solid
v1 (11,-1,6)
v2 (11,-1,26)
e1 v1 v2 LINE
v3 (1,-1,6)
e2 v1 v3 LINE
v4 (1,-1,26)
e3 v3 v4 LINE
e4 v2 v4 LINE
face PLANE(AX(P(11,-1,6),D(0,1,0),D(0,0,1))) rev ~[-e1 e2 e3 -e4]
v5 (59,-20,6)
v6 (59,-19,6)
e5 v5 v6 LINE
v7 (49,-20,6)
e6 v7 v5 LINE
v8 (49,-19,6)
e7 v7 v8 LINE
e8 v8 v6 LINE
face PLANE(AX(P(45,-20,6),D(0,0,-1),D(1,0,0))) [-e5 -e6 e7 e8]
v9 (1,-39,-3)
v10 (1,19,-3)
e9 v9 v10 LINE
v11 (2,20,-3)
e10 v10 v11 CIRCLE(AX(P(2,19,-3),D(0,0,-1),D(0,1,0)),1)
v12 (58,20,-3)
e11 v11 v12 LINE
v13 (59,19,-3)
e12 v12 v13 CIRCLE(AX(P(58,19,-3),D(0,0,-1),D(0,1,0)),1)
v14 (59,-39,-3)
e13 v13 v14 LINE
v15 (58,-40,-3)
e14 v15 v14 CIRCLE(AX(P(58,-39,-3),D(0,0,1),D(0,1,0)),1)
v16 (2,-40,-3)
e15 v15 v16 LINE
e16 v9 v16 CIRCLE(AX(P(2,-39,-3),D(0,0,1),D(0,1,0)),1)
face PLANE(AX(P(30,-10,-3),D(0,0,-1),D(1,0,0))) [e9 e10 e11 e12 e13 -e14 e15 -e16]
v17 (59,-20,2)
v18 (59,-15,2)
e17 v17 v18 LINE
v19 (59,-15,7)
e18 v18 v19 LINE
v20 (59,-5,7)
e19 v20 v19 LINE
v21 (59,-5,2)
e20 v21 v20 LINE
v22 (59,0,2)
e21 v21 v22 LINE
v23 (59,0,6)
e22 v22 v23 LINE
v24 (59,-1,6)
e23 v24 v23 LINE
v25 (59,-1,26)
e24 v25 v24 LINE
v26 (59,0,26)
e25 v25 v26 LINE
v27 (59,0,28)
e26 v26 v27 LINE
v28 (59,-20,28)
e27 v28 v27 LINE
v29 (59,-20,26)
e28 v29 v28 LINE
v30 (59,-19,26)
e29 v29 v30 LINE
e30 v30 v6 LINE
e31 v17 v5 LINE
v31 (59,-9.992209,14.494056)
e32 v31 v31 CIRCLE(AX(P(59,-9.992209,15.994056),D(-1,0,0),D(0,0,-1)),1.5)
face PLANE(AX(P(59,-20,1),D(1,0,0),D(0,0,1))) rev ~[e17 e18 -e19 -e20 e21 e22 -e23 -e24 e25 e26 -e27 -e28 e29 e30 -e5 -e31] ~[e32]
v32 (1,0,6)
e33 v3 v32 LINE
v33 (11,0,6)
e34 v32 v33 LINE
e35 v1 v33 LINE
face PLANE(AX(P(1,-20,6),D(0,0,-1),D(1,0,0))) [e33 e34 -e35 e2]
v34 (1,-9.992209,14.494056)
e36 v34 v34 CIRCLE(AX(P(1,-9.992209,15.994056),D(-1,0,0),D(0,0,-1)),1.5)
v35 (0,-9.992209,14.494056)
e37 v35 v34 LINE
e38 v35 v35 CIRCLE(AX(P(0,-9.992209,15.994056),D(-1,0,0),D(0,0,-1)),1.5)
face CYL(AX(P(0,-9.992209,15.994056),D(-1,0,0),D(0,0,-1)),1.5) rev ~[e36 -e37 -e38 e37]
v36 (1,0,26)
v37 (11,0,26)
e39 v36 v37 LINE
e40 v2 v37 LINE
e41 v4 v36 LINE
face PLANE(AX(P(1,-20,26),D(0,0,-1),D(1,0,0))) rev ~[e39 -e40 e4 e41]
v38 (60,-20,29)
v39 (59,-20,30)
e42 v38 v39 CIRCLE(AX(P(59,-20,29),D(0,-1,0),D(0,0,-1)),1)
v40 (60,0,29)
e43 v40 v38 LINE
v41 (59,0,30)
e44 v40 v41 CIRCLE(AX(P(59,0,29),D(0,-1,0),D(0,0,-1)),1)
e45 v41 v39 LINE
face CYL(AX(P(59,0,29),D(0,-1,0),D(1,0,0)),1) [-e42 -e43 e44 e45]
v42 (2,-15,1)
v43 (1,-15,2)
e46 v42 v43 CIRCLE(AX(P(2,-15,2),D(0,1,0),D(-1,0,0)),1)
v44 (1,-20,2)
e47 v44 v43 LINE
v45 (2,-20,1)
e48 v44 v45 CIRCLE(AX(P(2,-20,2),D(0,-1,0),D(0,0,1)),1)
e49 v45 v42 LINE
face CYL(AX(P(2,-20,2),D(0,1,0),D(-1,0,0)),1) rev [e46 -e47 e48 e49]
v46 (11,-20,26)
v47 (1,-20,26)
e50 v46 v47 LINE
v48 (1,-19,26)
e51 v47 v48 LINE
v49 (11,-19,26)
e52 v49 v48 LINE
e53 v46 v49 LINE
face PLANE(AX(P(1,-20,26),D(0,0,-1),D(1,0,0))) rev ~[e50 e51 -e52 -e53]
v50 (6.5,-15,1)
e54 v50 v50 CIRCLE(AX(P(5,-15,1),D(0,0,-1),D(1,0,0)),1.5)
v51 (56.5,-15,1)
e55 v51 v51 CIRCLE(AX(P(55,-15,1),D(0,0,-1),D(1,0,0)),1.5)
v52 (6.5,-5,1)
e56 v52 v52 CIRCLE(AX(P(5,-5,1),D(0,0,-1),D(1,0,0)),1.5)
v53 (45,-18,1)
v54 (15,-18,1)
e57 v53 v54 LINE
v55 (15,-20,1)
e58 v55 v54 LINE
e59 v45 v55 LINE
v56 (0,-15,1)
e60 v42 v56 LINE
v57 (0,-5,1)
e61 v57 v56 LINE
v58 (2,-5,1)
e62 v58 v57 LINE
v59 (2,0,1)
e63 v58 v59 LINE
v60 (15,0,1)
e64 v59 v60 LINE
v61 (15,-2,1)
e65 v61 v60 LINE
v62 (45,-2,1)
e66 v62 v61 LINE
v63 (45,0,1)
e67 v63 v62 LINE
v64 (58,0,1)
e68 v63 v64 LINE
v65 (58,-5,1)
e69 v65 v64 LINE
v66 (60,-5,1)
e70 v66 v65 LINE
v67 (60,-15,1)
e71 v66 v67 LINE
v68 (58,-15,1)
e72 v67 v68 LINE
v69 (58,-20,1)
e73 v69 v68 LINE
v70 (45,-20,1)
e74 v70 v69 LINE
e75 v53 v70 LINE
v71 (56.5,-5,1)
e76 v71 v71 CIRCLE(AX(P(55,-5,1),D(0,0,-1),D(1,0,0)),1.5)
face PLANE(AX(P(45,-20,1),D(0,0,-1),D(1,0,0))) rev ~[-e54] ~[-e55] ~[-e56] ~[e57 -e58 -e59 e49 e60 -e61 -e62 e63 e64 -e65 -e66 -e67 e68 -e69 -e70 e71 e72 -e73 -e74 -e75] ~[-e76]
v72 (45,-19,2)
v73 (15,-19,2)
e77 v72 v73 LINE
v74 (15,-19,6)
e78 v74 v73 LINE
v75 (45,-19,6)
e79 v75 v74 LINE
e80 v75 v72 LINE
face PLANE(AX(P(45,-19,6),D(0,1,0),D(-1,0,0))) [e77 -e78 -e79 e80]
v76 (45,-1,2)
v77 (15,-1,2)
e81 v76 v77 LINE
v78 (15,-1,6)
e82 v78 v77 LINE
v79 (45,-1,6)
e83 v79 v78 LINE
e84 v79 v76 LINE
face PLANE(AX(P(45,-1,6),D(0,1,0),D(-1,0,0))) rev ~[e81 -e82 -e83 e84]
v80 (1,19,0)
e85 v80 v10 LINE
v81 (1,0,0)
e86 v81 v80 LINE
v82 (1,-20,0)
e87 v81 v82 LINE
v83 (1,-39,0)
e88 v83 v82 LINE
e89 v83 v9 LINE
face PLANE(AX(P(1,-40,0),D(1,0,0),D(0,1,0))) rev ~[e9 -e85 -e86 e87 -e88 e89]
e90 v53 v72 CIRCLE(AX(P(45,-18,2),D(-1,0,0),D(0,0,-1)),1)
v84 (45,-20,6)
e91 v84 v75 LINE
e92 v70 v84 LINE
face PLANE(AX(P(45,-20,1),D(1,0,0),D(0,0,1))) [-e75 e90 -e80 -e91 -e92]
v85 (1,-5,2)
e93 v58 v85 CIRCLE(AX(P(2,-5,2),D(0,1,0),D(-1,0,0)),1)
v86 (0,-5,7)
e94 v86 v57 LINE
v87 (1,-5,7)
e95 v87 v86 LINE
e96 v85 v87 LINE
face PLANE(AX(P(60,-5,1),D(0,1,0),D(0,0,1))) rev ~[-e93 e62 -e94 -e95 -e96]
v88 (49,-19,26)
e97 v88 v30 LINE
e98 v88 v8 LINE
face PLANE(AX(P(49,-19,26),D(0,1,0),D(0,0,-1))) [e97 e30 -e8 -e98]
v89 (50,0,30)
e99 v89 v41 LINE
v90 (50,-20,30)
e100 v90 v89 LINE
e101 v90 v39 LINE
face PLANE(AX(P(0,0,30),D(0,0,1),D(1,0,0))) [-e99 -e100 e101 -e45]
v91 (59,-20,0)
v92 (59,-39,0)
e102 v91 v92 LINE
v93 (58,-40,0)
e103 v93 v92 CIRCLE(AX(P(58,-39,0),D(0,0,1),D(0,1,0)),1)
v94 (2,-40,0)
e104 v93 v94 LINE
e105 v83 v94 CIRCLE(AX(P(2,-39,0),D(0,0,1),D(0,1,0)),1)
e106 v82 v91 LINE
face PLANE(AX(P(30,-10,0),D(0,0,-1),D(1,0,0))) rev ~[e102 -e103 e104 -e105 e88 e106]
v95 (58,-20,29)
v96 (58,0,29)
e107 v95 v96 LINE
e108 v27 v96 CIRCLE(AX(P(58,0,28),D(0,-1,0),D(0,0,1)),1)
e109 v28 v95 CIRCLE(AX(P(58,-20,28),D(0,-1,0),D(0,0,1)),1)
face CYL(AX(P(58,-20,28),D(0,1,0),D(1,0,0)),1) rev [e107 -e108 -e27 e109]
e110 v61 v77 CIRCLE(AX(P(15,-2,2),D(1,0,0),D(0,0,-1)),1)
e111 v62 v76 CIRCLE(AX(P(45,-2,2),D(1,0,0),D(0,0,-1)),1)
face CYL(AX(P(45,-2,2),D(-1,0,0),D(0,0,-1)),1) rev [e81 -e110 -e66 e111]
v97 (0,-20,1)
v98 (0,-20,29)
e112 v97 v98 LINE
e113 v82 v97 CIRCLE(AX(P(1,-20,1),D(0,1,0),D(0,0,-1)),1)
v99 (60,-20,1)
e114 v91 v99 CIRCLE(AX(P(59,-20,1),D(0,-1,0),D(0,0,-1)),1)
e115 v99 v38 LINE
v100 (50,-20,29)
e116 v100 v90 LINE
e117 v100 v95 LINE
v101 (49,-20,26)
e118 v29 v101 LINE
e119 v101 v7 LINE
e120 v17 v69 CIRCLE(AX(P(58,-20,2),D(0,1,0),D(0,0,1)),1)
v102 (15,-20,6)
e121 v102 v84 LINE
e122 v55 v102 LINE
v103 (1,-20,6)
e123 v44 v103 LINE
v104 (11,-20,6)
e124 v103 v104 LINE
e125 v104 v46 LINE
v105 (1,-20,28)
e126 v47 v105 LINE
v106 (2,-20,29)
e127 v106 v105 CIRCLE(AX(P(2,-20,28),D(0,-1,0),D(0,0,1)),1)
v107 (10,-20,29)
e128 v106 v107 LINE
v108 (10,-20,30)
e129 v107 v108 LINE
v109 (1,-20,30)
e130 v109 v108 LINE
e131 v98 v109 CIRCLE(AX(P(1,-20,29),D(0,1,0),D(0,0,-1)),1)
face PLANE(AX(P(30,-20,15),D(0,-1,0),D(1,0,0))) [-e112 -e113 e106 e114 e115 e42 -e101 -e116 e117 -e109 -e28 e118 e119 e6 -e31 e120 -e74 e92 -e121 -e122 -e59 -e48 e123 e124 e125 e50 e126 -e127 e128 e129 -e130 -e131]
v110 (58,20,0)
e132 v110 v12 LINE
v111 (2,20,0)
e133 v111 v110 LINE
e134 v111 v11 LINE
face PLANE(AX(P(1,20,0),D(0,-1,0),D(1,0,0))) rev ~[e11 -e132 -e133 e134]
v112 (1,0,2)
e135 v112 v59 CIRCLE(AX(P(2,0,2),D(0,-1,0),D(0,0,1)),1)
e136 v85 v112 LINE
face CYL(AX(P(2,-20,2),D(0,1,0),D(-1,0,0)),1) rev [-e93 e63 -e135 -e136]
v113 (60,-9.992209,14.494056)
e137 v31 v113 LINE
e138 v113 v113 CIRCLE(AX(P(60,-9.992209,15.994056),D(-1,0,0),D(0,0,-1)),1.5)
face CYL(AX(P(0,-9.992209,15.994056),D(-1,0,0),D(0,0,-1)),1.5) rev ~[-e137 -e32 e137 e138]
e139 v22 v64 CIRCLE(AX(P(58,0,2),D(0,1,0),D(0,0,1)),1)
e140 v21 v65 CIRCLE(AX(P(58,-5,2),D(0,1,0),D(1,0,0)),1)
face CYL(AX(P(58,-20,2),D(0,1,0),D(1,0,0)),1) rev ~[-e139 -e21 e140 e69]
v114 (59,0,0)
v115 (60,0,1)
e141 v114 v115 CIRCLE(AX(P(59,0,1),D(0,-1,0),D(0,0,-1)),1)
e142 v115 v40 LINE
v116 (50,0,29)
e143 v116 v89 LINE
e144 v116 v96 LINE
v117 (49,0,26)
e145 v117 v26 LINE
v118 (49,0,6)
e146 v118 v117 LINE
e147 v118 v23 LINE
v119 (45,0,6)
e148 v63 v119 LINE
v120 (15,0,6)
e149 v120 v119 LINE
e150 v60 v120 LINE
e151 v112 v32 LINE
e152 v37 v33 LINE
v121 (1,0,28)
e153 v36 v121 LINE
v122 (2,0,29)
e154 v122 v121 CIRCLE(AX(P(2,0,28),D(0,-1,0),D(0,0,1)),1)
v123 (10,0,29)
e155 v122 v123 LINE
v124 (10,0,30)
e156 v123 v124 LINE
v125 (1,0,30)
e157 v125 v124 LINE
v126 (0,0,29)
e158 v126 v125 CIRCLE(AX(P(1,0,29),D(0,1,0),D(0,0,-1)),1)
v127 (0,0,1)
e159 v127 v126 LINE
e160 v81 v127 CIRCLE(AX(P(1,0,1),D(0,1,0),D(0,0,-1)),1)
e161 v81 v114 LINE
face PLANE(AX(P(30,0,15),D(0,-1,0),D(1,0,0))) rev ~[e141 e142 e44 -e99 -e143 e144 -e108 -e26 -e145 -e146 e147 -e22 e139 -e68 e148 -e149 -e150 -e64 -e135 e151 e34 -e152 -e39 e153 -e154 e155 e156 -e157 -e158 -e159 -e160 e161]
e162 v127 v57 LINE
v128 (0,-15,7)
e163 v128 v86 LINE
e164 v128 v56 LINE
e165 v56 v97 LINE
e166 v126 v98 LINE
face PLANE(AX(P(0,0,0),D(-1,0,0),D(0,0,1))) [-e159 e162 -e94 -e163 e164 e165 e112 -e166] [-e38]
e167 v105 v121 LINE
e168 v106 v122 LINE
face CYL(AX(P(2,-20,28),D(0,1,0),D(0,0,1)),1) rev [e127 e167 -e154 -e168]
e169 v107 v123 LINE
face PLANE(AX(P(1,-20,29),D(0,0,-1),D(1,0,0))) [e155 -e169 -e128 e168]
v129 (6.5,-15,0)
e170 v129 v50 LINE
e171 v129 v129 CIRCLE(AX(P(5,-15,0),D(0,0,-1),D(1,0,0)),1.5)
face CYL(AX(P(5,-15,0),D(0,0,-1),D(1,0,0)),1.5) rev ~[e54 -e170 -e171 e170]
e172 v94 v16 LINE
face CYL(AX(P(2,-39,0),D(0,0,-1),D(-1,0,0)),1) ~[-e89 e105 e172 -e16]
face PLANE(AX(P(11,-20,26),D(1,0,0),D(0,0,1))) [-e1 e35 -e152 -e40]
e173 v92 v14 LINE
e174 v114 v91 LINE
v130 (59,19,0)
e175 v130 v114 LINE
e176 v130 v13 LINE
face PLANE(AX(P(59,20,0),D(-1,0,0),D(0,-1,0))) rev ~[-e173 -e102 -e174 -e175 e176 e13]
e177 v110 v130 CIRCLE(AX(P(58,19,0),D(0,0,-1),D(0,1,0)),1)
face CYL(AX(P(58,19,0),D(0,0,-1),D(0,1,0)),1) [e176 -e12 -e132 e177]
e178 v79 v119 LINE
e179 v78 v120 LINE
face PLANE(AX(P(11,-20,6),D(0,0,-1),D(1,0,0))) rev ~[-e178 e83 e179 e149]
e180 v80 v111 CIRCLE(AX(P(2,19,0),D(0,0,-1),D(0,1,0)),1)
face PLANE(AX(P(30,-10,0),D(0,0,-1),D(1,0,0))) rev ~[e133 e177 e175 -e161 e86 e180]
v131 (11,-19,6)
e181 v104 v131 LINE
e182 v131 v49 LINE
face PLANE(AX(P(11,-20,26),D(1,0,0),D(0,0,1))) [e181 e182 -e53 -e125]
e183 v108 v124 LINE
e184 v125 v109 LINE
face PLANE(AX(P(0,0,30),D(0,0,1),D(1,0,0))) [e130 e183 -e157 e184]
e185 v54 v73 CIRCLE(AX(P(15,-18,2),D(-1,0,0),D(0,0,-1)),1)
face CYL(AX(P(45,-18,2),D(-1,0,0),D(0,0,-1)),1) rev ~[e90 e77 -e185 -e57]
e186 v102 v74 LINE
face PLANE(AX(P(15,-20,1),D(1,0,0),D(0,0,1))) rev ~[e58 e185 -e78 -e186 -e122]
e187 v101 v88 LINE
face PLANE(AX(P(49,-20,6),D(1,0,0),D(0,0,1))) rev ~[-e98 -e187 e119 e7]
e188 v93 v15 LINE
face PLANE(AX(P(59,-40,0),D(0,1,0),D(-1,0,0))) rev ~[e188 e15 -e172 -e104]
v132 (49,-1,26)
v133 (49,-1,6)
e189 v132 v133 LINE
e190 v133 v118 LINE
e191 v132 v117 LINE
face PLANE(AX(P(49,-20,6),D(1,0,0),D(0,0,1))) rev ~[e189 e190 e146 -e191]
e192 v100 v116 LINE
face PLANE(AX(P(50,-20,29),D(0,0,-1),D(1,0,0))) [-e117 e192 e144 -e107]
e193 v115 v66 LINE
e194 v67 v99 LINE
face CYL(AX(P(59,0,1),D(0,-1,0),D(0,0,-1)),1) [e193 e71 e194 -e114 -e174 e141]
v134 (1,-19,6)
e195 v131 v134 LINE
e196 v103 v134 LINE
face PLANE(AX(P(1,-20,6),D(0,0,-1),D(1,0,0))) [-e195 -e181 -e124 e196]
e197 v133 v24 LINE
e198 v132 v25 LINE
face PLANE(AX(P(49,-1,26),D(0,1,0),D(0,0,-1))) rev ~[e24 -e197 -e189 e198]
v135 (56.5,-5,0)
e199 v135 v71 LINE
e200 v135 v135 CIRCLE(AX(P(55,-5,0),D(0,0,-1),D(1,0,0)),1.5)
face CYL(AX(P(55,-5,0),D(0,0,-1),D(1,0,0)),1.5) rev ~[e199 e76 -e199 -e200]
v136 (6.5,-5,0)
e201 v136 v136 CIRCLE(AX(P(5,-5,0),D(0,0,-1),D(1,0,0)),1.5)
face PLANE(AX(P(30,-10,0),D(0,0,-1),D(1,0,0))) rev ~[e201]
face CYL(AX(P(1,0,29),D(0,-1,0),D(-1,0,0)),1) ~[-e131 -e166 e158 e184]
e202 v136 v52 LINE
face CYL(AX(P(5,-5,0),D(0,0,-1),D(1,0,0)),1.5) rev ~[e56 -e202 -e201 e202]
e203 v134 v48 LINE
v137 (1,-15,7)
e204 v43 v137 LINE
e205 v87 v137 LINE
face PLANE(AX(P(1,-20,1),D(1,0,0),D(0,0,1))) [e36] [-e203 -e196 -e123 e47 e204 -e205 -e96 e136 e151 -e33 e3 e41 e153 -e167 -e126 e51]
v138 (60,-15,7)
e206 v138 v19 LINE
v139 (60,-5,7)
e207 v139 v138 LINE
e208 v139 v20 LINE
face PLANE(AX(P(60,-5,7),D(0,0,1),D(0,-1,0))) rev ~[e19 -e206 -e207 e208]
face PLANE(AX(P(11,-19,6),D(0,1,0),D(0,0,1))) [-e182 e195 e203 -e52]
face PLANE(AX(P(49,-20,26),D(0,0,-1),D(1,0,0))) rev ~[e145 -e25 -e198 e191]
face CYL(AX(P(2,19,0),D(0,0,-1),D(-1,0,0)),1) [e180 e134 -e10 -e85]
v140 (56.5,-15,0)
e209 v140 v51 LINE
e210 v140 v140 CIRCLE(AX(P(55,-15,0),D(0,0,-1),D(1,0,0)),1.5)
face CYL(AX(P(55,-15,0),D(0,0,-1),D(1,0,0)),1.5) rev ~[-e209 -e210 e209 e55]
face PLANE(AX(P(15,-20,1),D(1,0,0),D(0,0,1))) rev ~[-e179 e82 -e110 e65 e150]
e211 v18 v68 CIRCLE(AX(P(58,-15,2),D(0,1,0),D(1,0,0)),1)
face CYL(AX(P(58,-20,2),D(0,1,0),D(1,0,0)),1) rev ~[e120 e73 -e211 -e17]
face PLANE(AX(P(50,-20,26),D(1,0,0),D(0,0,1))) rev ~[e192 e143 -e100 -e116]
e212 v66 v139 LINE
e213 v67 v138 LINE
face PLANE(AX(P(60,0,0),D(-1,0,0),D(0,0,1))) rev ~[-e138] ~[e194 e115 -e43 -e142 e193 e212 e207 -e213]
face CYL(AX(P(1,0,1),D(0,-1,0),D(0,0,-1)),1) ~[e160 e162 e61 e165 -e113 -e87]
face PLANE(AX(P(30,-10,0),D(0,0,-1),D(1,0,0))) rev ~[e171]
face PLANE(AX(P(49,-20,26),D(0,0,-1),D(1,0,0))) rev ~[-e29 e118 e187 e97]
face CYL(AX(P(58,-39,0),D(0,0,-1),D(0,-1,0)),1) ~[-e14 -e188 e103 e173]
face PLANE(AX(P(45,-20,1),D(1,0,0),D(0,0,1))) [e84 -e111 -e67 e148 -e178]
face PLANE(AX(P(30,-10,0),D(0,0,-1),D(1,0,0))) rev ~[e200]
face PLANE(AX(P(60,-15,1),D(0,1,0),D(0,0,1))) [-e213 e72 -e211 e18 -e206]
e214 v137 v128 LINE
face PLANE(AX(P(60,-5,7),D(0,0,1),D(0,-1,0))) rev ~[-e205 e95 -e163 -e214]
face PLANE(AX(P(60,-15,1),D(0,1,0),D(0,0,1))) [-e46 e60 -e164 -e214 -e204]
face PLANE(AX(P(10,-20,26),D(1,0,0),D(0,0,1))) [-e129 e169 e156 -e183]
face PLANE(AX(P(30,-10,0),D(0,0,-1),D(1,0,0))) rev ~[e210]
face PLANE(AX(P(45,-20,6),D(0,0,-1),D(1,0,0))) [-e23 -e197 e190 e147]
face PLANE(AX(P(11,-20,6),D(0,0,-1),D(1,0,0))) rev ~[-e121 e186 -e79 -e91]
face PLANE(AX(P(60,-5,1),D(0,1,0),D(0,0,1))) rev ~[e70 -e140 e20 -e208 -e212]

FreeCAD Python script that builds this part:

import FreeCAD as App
import Part
import Sketcher

V = App.Vector


def edges_at(feature, points):
    """Names of the edges that pass closest to the given points."""
    edges = feature.Shape.Edges
    near = lambda p: min(range(len(edges)), key=lambda i: edges[i].distToShape(Part.Vertex(*p))[0])
    return sorted({f"Edge{near(p) + 1}" for p in points})

doc = App.newDocument("Part")
body = doc.addObject("PartDesign::Body", "Body")

# Sketch on XZ plane
sketch1 = body.newObject("Sketcher::SketchObject", "Sketch")
sketch1.AttachmentSupport = (doc.getObject("XZ_Plane"), [""])
sketch1.MapMode = "FlatFace"
sketch1.addGeometry([
    Part.LineSegment(V(0, 30, 0), V(0, 0, 0)),
    Part.LineSegment(V(0, 0, 0), V(60, 0, 0)),
    Part.LineSegment(V(60, 0, 0), V(60, 30, 0)),
    Part.LineSegment(V(60, 30, 0), V(0, 30, 0)),
], False)
sketch1.addConstraint([
    Sketcher.Constraint("Coincident", 0, 2, 1, 1),
    Sketcher.Constraint("Coincident", 1, 2, 2, 1),
    Sketcher.Constraint("Coincident", 2, 2, 3, 1),
    Sketcher.Constraint("Coincident", 3, 2, 0, 1),
    Sketcher.Constraint("Vertical", 0),
    Sketcher.Constraint("Horizontal", 1),
    Sketcher.Constraint("Vertical", 2),
    Sketcher.Constraint("Horizontal", 3),
    Sketcher.Constraint("Coincident", 0, 2, -1, 1),
    Sketcher.Constraint("DistanceX", 1, 1, 1, 2, 60.0),
    Sketcher.Constraint("DistanceY", 0, 2, 0, 1, 30.0),
])
pad1 = body.newObject("PartDesign::Pad", "Pad")
pad1.Profile = sketch1
pad1.Length = 20

# Sketch on XZ plane
sketch2 = body.newObject("Sketcher::SketchObject", "Sketch001")
sketch2.AttachmentSupport = (doc.getObject("XZ_Plane"), [""])
sketch2.MapMode = "FlatFace"
sketch2.AttachmentOffset = App.Placement(V(0, 0, 20), App.Rotation())
sketch2.addGeometry([
    Part.LineSegment(V(1, 6, 0), V(1, 1, 0)),
    Part.LineSegment(V(1, 1, 0), V(15, 1, 0)),
    Part.LineSegment(V(15, 1, 0), V(15, 6, 0)),
    Part.LineSegment(V(15, 6, 0), V(1, 6, 0)),
], False)
sketch2.addConstraint([
    Sketcher.Constraint("Coincident", 0, 2, 1, 1),
    Sketcher.Constraint("Coincident", 1, 2, 2, 1),
    Sketcher.Constraint("Coincident", 2, 2, 3, 1),
    Sketcher.Constraint("Coincident", 3, 2, 0, 1),
    Sketcher.Constraint("Vertical", 0),
    Sketcher.Constraint("Horizontal", 1),
    Sketcher.Constraint("Vertical", 2),
    Sketcher.Constraint("Horizontal", 3),
    Sketcher.Constraint("DistanceX", 1, 1, 1, 2, 14.0),
    Sketcher.Constraint("DistanceY", 0, 2, 0, 1, 5.0),
    Sketcher.Constraint("DistanceX", -1, 1, 0, 2, 1.0),
    Sketcher.Constraint("DistanceY", -1, 1, 0, 2, 1.0),
])
pocket1 = body.newObject("PartDesign::Pocket", "Pocket")
pocket1.Profile = sketch2
pocket1.Type = "ThroughAll"

# Sketch on XZ plane
sketch3 = body.newObject("Sketcher::SketchObject", "Sketch002")
sketch3.AttachmentSupport = (doc.getObject("XZ_Plane"), [""])
sketch3.MapMode = "FlatFace"
sketch3.AttachmentOffset = App.Placement(V(0, 0, 20), App.Rotation())
sketch3.addGeometry([
    Part.LineSegment(V(45, 6, 0), V(45, 1, 0)),
    Part.LineSegment(V(45, 1, 0), V(59, 1, 0)),
    Part.LineSegment(V(59, 1, 0), V(59, 6, 0)),
    Part.LineSegment(V(59, 6, 0), V(45, 6, 0)),
], False)
sketch3.addConstraint([
    Sketcher.Constraint("Coincident", 0, 2, 1, 1),
    Sketcher.Constraint("Coincident", 1, 2, 2, 1),
    Sketcher.Constraint("Coincident", 2, 2, 3, 1),
    Sketcher.Constraint("Coincident", 3, 2, 0, 1),
    Sketcher.Constraint("Vertical", 0),
    Sketcher.Constraint("Horizontal", 1),
    Sketcher.Constraint("Vertical", 2),
    Sketcher.Constraint("Horizontal", 3),
    Sketcher.Constraint("DistanceX", 1, 1, 1, 2, 14.0),
    Sketcher.Constraint("DistanceY", 0, 2, 0, 1, 5.0),
    Sketcher.Constraint("DistanceX", -1, 1, 0, 2, 45.0),
    Sketcher.Constraint("DistanceY", -1, 1, 0, 2, 1.0),
])
pocket2 = body.newObject("PartDesign::Pocket", "Pocket001")
pocket2.Profile = sketch3
pocket2.Type = "ThroughAll"

# Sketch on XZ plane
sketch4 = body.newObject("Sketcher::SketchObject", "Sketch003")
sketch4.AttachmentSupport = (doc.getObject("XZ_Plane"), [""])
sketch4.MapMode = "FlatFace"
sketch4.AttachmentOffset = App.Placement(V(0, 0, 20), App.Rotation())
sketch4.addGeometry([
    Part.LineSegment(V(11, 26, 0), V(11, 6, 0)),
    Part.LineSegment(V(11, 6, 0), V(49, 6, 0)),
    Part.LineSegment(V(49, 6, 0), V(49, 26, 0)),
    Part.LineSegment(V(49, 26, 0), V(11, 26, 0)),
], False)
sketch4.addConstraint([
    Sketcher.Constraint("Coincident", 0, 2, 1, 1),
    Sketcher.Constraint("Coincident", 1, 2, 2, 1),
    Sketcher.Constraint("Coincident", 2, 2, 3, 1),
    Sketcher.Constraint("Coincident", 3, 2, 0, 1),
    Sketcher.Constraint("Vertical", 0),
    Sketcher.Constraint("Horizontal", 1),
    Sketcher.Constraint("Vertical", 2),
    Sketcher.Constraint("Horizontal", 3),
    Sketcher.Constraint("DistanceX", 1, 1, 1, 2, 38.0),
    Sketcher.Constraint("DistanceY", 0, 2, 0, 1, 20.0),
    Sketcher.Constraint("DistanceX", -1, 1, 0, 2, 11.0),
    Sketcher.Constraint("DistanceY", -1, 1, 0, 2, 6.0),
])
pocket3 = body.newObject("PartDesign::Pocket", "Pocket002")
pocket3.Profile = sketch4
pocket3.Type = "ThroughAll"

# Sketch on XZ plane
sketch5 = body.newObject("Sketcher::SketchObject", "Sketch004")
sketch5.AttachmentSupport = (doc.getObject("XZ_Plane"), [""])
sketch5.MapMode = "FlatFace"
sketch5.AttachmentOffset = App.Placement(V(0, 0, 20), App.Rotation())
sketch5.addGeometry([
    Part.LineSegment(V(11, 31, 0), V(11, 26, 0)),
    Part.LineSegment(V(11, 26, 0), V(49, 26, 0)),
    Part.LineSegment(V(49, 26, 0), V(49, 31, 0)),
    Part.LineSegment(V(49, 31, 0), V(11, 31, 0)),
], False)
sketch5.addConstraint([
    Sketcher.Constraint("Coincident", 0, 2, 1, 1),
    Sketcher.Constraint("Coincident", 1, 2, 2, 1),
    Sketcher.Constraint("Coincident", 2, 2, 3, 1),
    Sketcher.Constraint("Coincident", 3, 2, 0, 1),
    Sketcher.Constraint("Vertical", 0),
    Sketcher.Constraint("Horizontal", 1),
    Sketcher.Constraint("Vertical", 2),
    Sketcher.Constraint("Horizontal", 3),
    Sketcher.Constraint("DistanceX", 1, 1, 1, 2, 38.0),
    Sketcher.Constraint("DistanceY", 0, 2, 0, 1, 5.0),
    Sketcher.Constraint("DistanceX", -1, 1, 0, 2, 11.0),
    Sketcher.Constraint("DistanceY", -1, 1, 0, 2, 26.0),
])
pocket4 = body.newObject("PartDesign::Pocket", "Pocket003")
pocket4.Profile = sketch5
pocket4.Type = "ThroughAll"

# Sketch on XZ plane
sketch6 = body.newObject("Sketcher::SketchObject", "Sketch005")
sketch6.AttachmentSupport = (doc.getObject("XZ_Plane"), [""])
sketch6.MapMode = "FlatFace"
sketch6.AttachmentOffset = App.Placement(V(0, 0, 20), App.Rotation())
sketch6.addGeometry([
    Part.LineSegment(V(1, 29, 0), V(1, 26, 0)),  # 0
    Part.LineSegment(V(1, 26, 0), V(10, 26, 0)),  # 1
    Part.LineSegment(V(10, 26, 0), V(10, 29, 0)),  # 2
    Part.LineSegment(V(10, 29, 0), V(1, 29, 0)),  # 3
    Part.LineSegment(V(50, 29, 0), V(50, 26, 0)),  # 4
    Part.LineSegment(V(50, 26, 0), V(59, 26, 0)),  # 5
    Part.LineSegment(V(59, 26, 0), V(59, 29, 0)),  # 6
    Part.LineSegment(V(59, 29, 0), V(50, 29, 0)),  # 7
], False)
sketch6.addConstraint([
    Sketcher.Constraint("Coincident", 0, 2, 1, 1),
    Sketcher.Constraint("Coincident", 1, 2, 2, 1),
    Sketcher.Constraint("Coincident", 2, 2, 3, 1),
    Sketcher.Constraint("Coincident", 3, 2, 0, 1),
    Sketcher.Constraint("Coincident", 4, 2, 5, 1),
    Sketcher.Constraint("Coincident", 5, 2, 6, 1),
    Sketcher.Constraint("Coincident", 6, 2, 7, 1),
    Sketcher.Constraint("Coincident", 7, 2, 4, 1),
    Sketcher.Constraint("Vertical", 0),
    Sketcher.Constraint("Horizontal", 1),
    Sketcher.Constraint("Vertical", 2),
    Sketcher.Constraint("Horizontal", 3),
    Sketcher.Constraint("Vertical", 4),
    Sketcher.Constraint("Horizontal", 5),
    Sketcher.Constraint("Vertical", 6),
    Sketcher.Constraint("Horizontal", 7),
    Sketcher.Constraint("Horizontal", 1, 2, 4, 2),
    Sketcher.Constraint("Horizontal", 3, 2, 6, 2),
    Sketcher.Constraint("Equal", 3, 5),
    Sketcher.Constraint("DistanceX", 1, 1, 1, 2, 9.0),
    Sketcher.Constraint("DistanceY", 0, 2, 0, 1, 3.0),
    Sketcher.Constraint("DistanceX", -1, 1, 0, 2, 1.0),
    Sketcher.Constraint("DistanceY", -1, 1, 0, 2, 26.0),
    Sketcher.Constraint("DistanceX", -1, 1, 4, 2, 50.0),
])
pocket5 = body.newObject("PartDesign::Pocket", "Pocket004")
pocket5.Profile = sketch6
pocket5.Type = "ThroughAll"

# Sketch on XZ plane
sketch7 = body.newObject("Sketcher::SketchObject", "Sketch006")
sketch7.AttachmentSupport = (doc.getObject("XZ_Plane"), [""])
sketch7.MapMode = "FlatFace"
sketch7.AttachmentOffset = App.Placement(V(0, 0, 20), App.Rotation())
sketch7.addGeometry([
    Part.LineSegment(V(10, 30, 0), V(10, 26, 0)),  # 0
    Part.LineSegment(V(10, 26, 0), V(11, 26, 0)),  # 1
    Part.LineSegment(V(11, 26, 0), V(11, 30, 0)),  # 2
    Part.LineSegment(V(11, 30, 0), V(10, 30, 0)),  # 3
    Part.LineSegment(V(49, 30, 0), V(49, 26, 0)),  # 4
    Part.LineSegment(V(49, 26, 0), V(50, 26, 0)),  # 5
    Part.LineSegment(V(50, 26, 0), V(50, 30, 0)),  # 6
    Part.LineSegment(V(50, 30, 0), V(49, 30, 0)),  # 7
], False)
sketch7.addConstraint([
    Sketcher.Constraint("Coincident", 0, 2, 1, 1),
    Sketcher.Constraint("Coincident", 1, 2, 2, 1),
    Sketcher.Constraint("Coincident", 2, 2, 3, 1),
    Sketcher.Constraint("Coincident", 3, 2, 0, 1),
    Sketcher.Constraint("Coincident", 4, 2, 5, 1),
    Sketcher.Constraint("Coincident", 5, 2, 6, 1),
    Sketcher.Constraint("Coincident", 6, 2, 7, 1),
    Sketcher.Constraint("Coincident", 7, 2, 4, 1),
    Sketcher.Constraint("Vertical", 0),
    Sketcher.Constraint("Horizontal", 1),
    Sketcher.Constraint("Vertical", 2),
    Sketcher.Constraint("Horizontal", 3),
    Sketcher.Constraint("Vertical", 4),
    Sketcher.Constraint("Horizontal", 5),
    Sketcher.Constraint("Vertical", 6),
    Sketcher.Constraint("Horizontal", 7),
    Sketcher.Constraint("Horizontal", 1, 2, 4, 2),
    Sketcher.Constraint("Horizontal", 3, 2, 6, 2),
    Sketcher.Constraint("Equal", 3, 5),
    Sketcher.Constraint("DistanceX", 1, 1, 1, 2, 1.0),
    Sketcher.Constraint("DistanceY", 0, 2, 0, 1, 4.0),
    Sketcher.Constraint("DistanceX", -1, 1, 0, 2, 10.0),
    Sketcher.Constraint("DistanceY", -1, 1, 0, 2, 26.0),
    Sketcher.Constraint("DistanceX", -1, 1, 4, 2, 49.0),
])
pocket6 = body.newObject("PartDesign::Pocket", "Pocket005")
pocket6.Profile = sketch7
pocket6.Type = "ThroughAll"

# Sketch on XY plane
sketch8 = body.newObject("Sketcher::SketchObject", "Sketch007")
sketch8.AttachmentSupport = (doc.getObject("XY_Plane"), [""])
sketch8.MapMode = "FlatFace"
sketch8.AttachmentOffset = App.Placement(V(0, 0, 6), App.Rotation())
sketch8.addGeometry([
    Part.LineSegment(V(45, -19, 0), V(45, -1, 0)),
    Part.LineSegment(V(45, -1, 0), V(15, -1, 0)),
    Part.LineSegment(V(15, -1, 0), V(15, -19, 0)),
    Part.LineSegment(V(15, -19, 0), V(45, -19, 0)),
], False)
sketch8.addConstraint([
    Sketcher.Constraint("Coincident", 0, 2, 1, 1),
    Sketcher.Constraint("Coincident", 1, 2, 2, 1),
    Sketcher.Constraint("Coincident", 2, 2, 3, 1),
    Sketcher.Constraint("Coincident", 3, 2, 0, 1),
    Sketcher.Constraint("Vertical", 0),
    Sketcher.Constraint("Horizontal", 1),
    Sketcher.Constraint("Vertical", 2),
    Sketcher.Constraint("Horizontal", 3),
    Sketcher.Constraint("DistanceX", 1, 2, 1, 1, 30.0),
    Sketcher.Constraint("DistanceY", 0, 1, 0, 2, 18.0),
    Sketcher.Constraint("DistanceX", -1, 1, 0, 2, 45.0),
    Sketcher.Constraint("DistanceY", 0, 2, -1, 1, 1.0),
])
pocket7 = body.newObject("PartDesign::Pocket", "Pocket006")
pocket7.Profile = sketch8
pocket7.Length = 5
doc.recompute()

fillet = body.newObject("PartDesign::Fillet", "Fillet")
fillet.Base = (pocket7, edges_at(pocket7, [(60, -10, 0)]))
fillet.Radius = 1
doc.recompute()

fillet2 = body.newObject("PartDesign::Fillet", "Fillet001")
fillet2.Base = (fillet, edges_at(fillet, [(0, -10, 0)]))
fillet2.Radius = 1
doc.recompute()

fillet3 = body.newObject("PartDesign::Fillet", "Fillet002")
fillet3.Base = (fillet2, edges_at(fillet2, [(0, -10, 30)]))
fillet3.Radius = 1
doc.recompute()

fillet4 = body.newObject("PartDesign::Fillet", "Fillet003")
fillet4.Base = (fillet3, edges_at(fillet3, [(60, -10, 30)]))
fillet4.Radius = 1
doc.recompute()

fillet5 = body.newObject("PartDesign::Fillet", "Fillet004")
fillet5.Base = (fillet4, edges_at(fillet4, [(1, -10, 29)]))
fillet5.Radius = 1
doc.recompute()

fillet6 = body.newObject("PartDesign::Fillet", "Fillet005")
fillet6.Base = (fillet5, edges_at(fillet5, [(1, -10, 1)]))
fillet6.Radius = 1
doc.recompute()

fillet7 = body.newObject("PartDesign::Fillet", "Fillet006")
fillet7.Base = (fillet6, edges_at(fillet6, [(59, -10, 29)]))
fillet7.Radius = 1
doc.recompute()

fillet8 = body.newObject("PartDesign::Fillet", "Fillet007")
fillet8.Base = (fillet7, edges_at(fillet7, [(59, -10, 1)]))
fillet8.Radius = 1

# Sketch on YZ plane
sketch9 = body.newObject("Sketcher::SketchObject", "Sketch008")
sketch9.AttachmentSupport = (doc.getObject("YZ_Plane"), [""])
sketch9.MapMode = "FlatFace"
sketch9.AttachmentOffset = App.Placement(V(0, 0, 49), App.Rotation())
sketch9.addGeometry([
    Part.LineSegment(V(-19, 26, 0), V(-1, 26, 0)),
    Part.LineSegment(V(-1, 26, 0), V(-1, 6, 0)),
    Part.LineSegment(V(-1, 6, 0), V(-19, 6, 0)),
    Part.LineSegment(V(-19, 6, 0), V(-19, 26, 0)),
], False)
sketch9.addConstraint([
    Sketcher.Constraint("Coincident", 0, 2, 1, 1),
    Sketcher.Constraint("Coincident", 1, 2, 2, 1),
    Sketcher.Constraint("Coincident", 2, 2, 3, 1),
    Sketcher.Constraint("Coincident", 3, 2, 0, 1),
    Sketcher.Constraint("Horizontal", 0),
    Sketcher.Constraint("Vertical", 1),
    Sketcher.Constraint("Horizontal", 2),
    Sketcher.Constraint("Vertical", 3),
    Sketcher.Constraint("DistanceX", 0, 1, 0, 2, 18.0),
    Sketcher.Constraint("DistanceY", 1, 2, 1, 1, 20.0),
    Sketcher.Constraint("DistanceX", 0, 2, -1, 1, 1.0),
    Sketcher.Constraint("DistanceY", -1, 1, 0, 2, 26.0),
])
pocket8 = body.newObject("PartDesign::Pocket", "Pocket007")
pocket8.Profile = sketch9
pocket8.Length = 10
pocket8.Reversed = True

# Sketch on YZ plane
sketch10 = body.newObject("Sketcher::SketchObject", "Sketch009")
sketch10.AttachmentSupport = (doc.getObject("YZ_Plane"), [""])
sketch10.MapMode = "FlatFace"
sketch10.AttachmentOffset = App.Placement(V(0, 0, 11), App.Rotation())
sketch10.addGeometry([
    Part.LineSegment(V(-19, 6, 0), V(-1, 6, 0)),
    Part.LineSegment(V(-1, 6, 0), V(-1, 26, 0)),
    Part.LineSegment(V(-1, 26, 0), V(-19, 26, 0)),
    Part.LineSegment(V(-19, 26, 0), V(-19, 6, 0)),
], False)
sketch10.addConstraint([
    Sketcher.Constraint("Coincident", 0, 2, 1, 1),
    Sketcher.Constraint("Coincident", 1, 2, 2, 1),
    Sketcher.Constraint("Coincident", 2, 2, 3, 1),
    Sketcher.Constraint("Coincident", 3, 2, 0, 1),
    Sketcher.Constraint("Horizontal", 0),
    Sketcher.Constraint("Vertical", 1),
    Sketcher.Constraint("Horizontal", 2),
    Sketcher.Constraint("Vertical", 3),
    Sketcher.Constraint("DistanceX", 0, 1, 0, 2, 18.0),
    Sketcher.Constraint("DistanceY", 1, 1, 1, 2, 20.0),
    Sketcher.Constraint("DistanceX", 0, 2, -1, 1, 1.0),
    Sketcher.Constraint("DistanceY", -1, 1, 0, 2, 6.0),
])
pocket9 = body.newObject("PartDesign::Pocket", "Pocket008")
pocket9.Profile = sketch10
pocket9.Length = 10
doc.recompute()

fillet9 = body.newObject("PartDesign::Fillet", "Fillet008")
fillet9.Base = (pocket9, edges_at(pocket9, [(30, -19, 1)]))
fillet9.Radius = 1
doc.recompute()

fillet10 = body.newObject("PartDesign::Fillet", "Fillet009")
fillet10.Base = (fillet9, edges_at(fillet9, [(30, -1, 1)]))
fillet10.Radius = 1

# Sketch on YZ plane
sketch11 = body.newObject("Sketcher::SketchObject", "Sketch010")
sketch11.AttachmentSupport = (doc.getObject("YZ_Plane"), [""])
sketch11.MapMode = "FlatFace"
sketch11.AttachmentOffset = App.Placement(V(0, 0, 60), App.Rotation())
sketch11.addGeometry([
    Part.LineSegment(V(-15, 1, 0), V(-5, 1, 0)),
    Part.LineSegment(V(-5, 1, 0), V(-5, 7, 0)),
    Part.LineSegment(V(-5, 7, 0), V(-15, 7, 0)),
    Part.LineSegment(V(-15, 7, 0), V(-15, 1, 0)),
], False)
sketch11.addConstraint([
    Sketcher.Constraint("Coincident", 0, 2, 1, 1),
    Sketcher.Constraint("Coincident", 1, 2, 2, 1),
    Sketcher.Constraint("Coincident", 2, 2, 3, 1),
    Sketcher.Constraint("Coincident", 3, 2, 0, 1),
    Sketcher.Constraint("Horizontal", 0),
    Sketcher.Constraint("Vertical", 1),
    Sketcher.Constraint("Horizontal", 2),
    Sketcher.Constraint("Vertical", 3),
    Sketcher.Constraint("DistanceX", 0, 1, 0, 2, 10.0),
    Sketcher.Constraint("DistanceY", 1, 1, 1, 2, 6.0),
    Sketcher.Constraint("DistanceX", 0, 2, -1, 1, 5.0),
    Sketcher.Constraint("DistanceY", -1, 1, 0, 2, 1.0),
])
pocket10 = body.newObject("PartDesign::Pocket", "Pocket009")
pocket10.Profile = sketch11
pocket10.Type = "ThroughAll"

# Sketch on XY plane
sketch12 = body.newObject("Sketcher::SketchObject", "Sketch011")
sketch12.AttachmentSupport = (doc.getObject("XY_Plane"), [""])
sketch12.MapMode = "FlatFace"
sketch12.addGeometry([
    Part.Circle(V(55, -5, 0), V(0, 0, 1), 1.5),
    Part.Circle(V(55, -15, 0), V(0, 0, 1), 1.5),
    Part.Circle(V(5, -5, 0), V(0, 0, 1), 1.5),
    Part.Circle(V(5, -15, 0), V(0, 0, 1), 1.5),
], False)
sketch12.addConstraint([
    Sketcher.Constraint("Equal", 0, 1),
    Sketcher.Constraint("Equal", 1, 2),
    Sketcher.Constraint("Equal", 2, 3),
    Sketcher.Constraint("Horizontal", 0, 3, 2, 3),
    Sketcher.Constraint("Horizontal", 1, 3, 3, 3),
    Sketcher.Constraint("Vertical", 0, 3, 1, 3),
    Sketcher.Constraint("Vertical", 2, 3, 3, 3),
    Sketcher.Constraint("Diameter", 0, 3.0),
    Sketcher.Constraint("DistanceX", -1, 1, 0, 3, 55.0),
    Sketcher.Constraint("DistanceY", 0, 3, -1, 1, 5.0),
    Sketcher.Constraint("DistanceY", 1, 3, -1, 1, 15.0),
    Sketcher.Constraint("DistanceX", -1, 1, 2, 3, 5.0),
])
pocket11 = body.newObject("PartDesign::Pocket", "Pocket010")
pocket11.Profile = sketch12
pocket11.Length = 5
pocket11.Reversed = True

# Sketch on YZ plane
sketch13 = body.newObject("Sketcher::SketchObject", "Sketch012")
sketch13.AttachmentSupport = (doc.getObject("YZ_Plane"), [""])
sketch13.MapMode = "FlatFace"
sketch13.addGeometry(Part.Circle(V(-10, 16, 0), V(0, 0, 1), 1.5), False)
sketch13.addConstraint([
    Sketcher.Constraint("Diameter", 0, 3.0),
    Sketcher.Constraint("DistanceX", 0, 3, -1, 1, 9.992209),
    Sketcher.Constraint("DistanceY", -1, 1, 0, 3, 15.994056),
])
pocket12 = body.newObject("PartDesign::Pocket", "Pocket011")
pocket12.Profile = sketch13
pocket12.Type = "ThroughAll"
pocket12.Reversed = True

# Sketch on XY plane
sketch14 = body.newObject("Sketcher::SketchObject", "Sketch013")
sketch14.AttachmentSupport = (doc.getObject("XY_Plane"), [""])
sketch14.MapMode = "FlatFace"
sketch14.addGeometry([
    Part.LineSegment(V(59, -40, 0), V(1, -40, 0)),
    Part.LineSegment(V(1, -40, 0), V(1, 20, 0)),
    Part.LineSegment(V(1, 20, 0), V(59, 20, 0)),
    Part.LineSegment(V(59, 20, 0), V(59, -40, 0)),
], False)
sketch14.addConstraint([
    Sketcher.Constraint("Coincident", 0, 2, 1, 1),
    Sketcher.Constraint("Coincident", 1, 2, 2, 1),
    Sketcher.Constraint("Coincident", 2, 2, 3, 1),
    Sketcher.Constraint("Coincident", 3, 2, 0, 1),
    Sketcher.Constraint("Horizontal", 0),
    Sketcher.Constraint("Vertical", 1),
    Sketcher.Constraint("Horizontal", 2),
    Sketcher.Constraint("Vertical", 3),
    Sketcher.Constraint("DistanceX", 0, 2, 0, 1, 58.0),
    Sketcher.Constraint("DistanceY", 1, 1, 1, 2, 60.0),
    Sketcher.Constraint("DistanceX", -1, 1, 0, 2, 1.0),
    Sketcher.Constraint("DistanceY", 0, 2, -1, 1, 40.0),
])
pad2 = body.newObject("PartDesign::Pad", "Pad001")
pad2.Profile = sketch14
pad2.Length = 3
pad2.Reversed = True
doc.recompute()

fillet11 = body.newObject("PartDesign::Fillet", "Fillet010")
fillet11.Base = (pad2, edges_at(pad2, [(59, -40, -1.5)]))
fillet11.Radius = 1
doc.recompute()

fillet12 = body.newObject("PartDesign::Fillet", "Fillet011")
fillet12.Base = (fillet11, edges_at(fillet11, [(1, 20, -1.5)]))
fillet12.Radius = 1
doc.recompute()

fillet13 = body.newObject("PartDesign::Fillet", "Fillet012")
fillet13.Base = (fillet12, edges_at(fillet12, [(59, 20, -1.5)]))
fillet13.Radius = 1
doc.recompute()

fillet14 = body.newObject("PartDesign::Fillet", "Fillet013")
fillet14.Base = (fillet13, edges_at(fillet13, [(1, -40, -1.5)]))
fillet14.Radius = 1

doc.recompute()
